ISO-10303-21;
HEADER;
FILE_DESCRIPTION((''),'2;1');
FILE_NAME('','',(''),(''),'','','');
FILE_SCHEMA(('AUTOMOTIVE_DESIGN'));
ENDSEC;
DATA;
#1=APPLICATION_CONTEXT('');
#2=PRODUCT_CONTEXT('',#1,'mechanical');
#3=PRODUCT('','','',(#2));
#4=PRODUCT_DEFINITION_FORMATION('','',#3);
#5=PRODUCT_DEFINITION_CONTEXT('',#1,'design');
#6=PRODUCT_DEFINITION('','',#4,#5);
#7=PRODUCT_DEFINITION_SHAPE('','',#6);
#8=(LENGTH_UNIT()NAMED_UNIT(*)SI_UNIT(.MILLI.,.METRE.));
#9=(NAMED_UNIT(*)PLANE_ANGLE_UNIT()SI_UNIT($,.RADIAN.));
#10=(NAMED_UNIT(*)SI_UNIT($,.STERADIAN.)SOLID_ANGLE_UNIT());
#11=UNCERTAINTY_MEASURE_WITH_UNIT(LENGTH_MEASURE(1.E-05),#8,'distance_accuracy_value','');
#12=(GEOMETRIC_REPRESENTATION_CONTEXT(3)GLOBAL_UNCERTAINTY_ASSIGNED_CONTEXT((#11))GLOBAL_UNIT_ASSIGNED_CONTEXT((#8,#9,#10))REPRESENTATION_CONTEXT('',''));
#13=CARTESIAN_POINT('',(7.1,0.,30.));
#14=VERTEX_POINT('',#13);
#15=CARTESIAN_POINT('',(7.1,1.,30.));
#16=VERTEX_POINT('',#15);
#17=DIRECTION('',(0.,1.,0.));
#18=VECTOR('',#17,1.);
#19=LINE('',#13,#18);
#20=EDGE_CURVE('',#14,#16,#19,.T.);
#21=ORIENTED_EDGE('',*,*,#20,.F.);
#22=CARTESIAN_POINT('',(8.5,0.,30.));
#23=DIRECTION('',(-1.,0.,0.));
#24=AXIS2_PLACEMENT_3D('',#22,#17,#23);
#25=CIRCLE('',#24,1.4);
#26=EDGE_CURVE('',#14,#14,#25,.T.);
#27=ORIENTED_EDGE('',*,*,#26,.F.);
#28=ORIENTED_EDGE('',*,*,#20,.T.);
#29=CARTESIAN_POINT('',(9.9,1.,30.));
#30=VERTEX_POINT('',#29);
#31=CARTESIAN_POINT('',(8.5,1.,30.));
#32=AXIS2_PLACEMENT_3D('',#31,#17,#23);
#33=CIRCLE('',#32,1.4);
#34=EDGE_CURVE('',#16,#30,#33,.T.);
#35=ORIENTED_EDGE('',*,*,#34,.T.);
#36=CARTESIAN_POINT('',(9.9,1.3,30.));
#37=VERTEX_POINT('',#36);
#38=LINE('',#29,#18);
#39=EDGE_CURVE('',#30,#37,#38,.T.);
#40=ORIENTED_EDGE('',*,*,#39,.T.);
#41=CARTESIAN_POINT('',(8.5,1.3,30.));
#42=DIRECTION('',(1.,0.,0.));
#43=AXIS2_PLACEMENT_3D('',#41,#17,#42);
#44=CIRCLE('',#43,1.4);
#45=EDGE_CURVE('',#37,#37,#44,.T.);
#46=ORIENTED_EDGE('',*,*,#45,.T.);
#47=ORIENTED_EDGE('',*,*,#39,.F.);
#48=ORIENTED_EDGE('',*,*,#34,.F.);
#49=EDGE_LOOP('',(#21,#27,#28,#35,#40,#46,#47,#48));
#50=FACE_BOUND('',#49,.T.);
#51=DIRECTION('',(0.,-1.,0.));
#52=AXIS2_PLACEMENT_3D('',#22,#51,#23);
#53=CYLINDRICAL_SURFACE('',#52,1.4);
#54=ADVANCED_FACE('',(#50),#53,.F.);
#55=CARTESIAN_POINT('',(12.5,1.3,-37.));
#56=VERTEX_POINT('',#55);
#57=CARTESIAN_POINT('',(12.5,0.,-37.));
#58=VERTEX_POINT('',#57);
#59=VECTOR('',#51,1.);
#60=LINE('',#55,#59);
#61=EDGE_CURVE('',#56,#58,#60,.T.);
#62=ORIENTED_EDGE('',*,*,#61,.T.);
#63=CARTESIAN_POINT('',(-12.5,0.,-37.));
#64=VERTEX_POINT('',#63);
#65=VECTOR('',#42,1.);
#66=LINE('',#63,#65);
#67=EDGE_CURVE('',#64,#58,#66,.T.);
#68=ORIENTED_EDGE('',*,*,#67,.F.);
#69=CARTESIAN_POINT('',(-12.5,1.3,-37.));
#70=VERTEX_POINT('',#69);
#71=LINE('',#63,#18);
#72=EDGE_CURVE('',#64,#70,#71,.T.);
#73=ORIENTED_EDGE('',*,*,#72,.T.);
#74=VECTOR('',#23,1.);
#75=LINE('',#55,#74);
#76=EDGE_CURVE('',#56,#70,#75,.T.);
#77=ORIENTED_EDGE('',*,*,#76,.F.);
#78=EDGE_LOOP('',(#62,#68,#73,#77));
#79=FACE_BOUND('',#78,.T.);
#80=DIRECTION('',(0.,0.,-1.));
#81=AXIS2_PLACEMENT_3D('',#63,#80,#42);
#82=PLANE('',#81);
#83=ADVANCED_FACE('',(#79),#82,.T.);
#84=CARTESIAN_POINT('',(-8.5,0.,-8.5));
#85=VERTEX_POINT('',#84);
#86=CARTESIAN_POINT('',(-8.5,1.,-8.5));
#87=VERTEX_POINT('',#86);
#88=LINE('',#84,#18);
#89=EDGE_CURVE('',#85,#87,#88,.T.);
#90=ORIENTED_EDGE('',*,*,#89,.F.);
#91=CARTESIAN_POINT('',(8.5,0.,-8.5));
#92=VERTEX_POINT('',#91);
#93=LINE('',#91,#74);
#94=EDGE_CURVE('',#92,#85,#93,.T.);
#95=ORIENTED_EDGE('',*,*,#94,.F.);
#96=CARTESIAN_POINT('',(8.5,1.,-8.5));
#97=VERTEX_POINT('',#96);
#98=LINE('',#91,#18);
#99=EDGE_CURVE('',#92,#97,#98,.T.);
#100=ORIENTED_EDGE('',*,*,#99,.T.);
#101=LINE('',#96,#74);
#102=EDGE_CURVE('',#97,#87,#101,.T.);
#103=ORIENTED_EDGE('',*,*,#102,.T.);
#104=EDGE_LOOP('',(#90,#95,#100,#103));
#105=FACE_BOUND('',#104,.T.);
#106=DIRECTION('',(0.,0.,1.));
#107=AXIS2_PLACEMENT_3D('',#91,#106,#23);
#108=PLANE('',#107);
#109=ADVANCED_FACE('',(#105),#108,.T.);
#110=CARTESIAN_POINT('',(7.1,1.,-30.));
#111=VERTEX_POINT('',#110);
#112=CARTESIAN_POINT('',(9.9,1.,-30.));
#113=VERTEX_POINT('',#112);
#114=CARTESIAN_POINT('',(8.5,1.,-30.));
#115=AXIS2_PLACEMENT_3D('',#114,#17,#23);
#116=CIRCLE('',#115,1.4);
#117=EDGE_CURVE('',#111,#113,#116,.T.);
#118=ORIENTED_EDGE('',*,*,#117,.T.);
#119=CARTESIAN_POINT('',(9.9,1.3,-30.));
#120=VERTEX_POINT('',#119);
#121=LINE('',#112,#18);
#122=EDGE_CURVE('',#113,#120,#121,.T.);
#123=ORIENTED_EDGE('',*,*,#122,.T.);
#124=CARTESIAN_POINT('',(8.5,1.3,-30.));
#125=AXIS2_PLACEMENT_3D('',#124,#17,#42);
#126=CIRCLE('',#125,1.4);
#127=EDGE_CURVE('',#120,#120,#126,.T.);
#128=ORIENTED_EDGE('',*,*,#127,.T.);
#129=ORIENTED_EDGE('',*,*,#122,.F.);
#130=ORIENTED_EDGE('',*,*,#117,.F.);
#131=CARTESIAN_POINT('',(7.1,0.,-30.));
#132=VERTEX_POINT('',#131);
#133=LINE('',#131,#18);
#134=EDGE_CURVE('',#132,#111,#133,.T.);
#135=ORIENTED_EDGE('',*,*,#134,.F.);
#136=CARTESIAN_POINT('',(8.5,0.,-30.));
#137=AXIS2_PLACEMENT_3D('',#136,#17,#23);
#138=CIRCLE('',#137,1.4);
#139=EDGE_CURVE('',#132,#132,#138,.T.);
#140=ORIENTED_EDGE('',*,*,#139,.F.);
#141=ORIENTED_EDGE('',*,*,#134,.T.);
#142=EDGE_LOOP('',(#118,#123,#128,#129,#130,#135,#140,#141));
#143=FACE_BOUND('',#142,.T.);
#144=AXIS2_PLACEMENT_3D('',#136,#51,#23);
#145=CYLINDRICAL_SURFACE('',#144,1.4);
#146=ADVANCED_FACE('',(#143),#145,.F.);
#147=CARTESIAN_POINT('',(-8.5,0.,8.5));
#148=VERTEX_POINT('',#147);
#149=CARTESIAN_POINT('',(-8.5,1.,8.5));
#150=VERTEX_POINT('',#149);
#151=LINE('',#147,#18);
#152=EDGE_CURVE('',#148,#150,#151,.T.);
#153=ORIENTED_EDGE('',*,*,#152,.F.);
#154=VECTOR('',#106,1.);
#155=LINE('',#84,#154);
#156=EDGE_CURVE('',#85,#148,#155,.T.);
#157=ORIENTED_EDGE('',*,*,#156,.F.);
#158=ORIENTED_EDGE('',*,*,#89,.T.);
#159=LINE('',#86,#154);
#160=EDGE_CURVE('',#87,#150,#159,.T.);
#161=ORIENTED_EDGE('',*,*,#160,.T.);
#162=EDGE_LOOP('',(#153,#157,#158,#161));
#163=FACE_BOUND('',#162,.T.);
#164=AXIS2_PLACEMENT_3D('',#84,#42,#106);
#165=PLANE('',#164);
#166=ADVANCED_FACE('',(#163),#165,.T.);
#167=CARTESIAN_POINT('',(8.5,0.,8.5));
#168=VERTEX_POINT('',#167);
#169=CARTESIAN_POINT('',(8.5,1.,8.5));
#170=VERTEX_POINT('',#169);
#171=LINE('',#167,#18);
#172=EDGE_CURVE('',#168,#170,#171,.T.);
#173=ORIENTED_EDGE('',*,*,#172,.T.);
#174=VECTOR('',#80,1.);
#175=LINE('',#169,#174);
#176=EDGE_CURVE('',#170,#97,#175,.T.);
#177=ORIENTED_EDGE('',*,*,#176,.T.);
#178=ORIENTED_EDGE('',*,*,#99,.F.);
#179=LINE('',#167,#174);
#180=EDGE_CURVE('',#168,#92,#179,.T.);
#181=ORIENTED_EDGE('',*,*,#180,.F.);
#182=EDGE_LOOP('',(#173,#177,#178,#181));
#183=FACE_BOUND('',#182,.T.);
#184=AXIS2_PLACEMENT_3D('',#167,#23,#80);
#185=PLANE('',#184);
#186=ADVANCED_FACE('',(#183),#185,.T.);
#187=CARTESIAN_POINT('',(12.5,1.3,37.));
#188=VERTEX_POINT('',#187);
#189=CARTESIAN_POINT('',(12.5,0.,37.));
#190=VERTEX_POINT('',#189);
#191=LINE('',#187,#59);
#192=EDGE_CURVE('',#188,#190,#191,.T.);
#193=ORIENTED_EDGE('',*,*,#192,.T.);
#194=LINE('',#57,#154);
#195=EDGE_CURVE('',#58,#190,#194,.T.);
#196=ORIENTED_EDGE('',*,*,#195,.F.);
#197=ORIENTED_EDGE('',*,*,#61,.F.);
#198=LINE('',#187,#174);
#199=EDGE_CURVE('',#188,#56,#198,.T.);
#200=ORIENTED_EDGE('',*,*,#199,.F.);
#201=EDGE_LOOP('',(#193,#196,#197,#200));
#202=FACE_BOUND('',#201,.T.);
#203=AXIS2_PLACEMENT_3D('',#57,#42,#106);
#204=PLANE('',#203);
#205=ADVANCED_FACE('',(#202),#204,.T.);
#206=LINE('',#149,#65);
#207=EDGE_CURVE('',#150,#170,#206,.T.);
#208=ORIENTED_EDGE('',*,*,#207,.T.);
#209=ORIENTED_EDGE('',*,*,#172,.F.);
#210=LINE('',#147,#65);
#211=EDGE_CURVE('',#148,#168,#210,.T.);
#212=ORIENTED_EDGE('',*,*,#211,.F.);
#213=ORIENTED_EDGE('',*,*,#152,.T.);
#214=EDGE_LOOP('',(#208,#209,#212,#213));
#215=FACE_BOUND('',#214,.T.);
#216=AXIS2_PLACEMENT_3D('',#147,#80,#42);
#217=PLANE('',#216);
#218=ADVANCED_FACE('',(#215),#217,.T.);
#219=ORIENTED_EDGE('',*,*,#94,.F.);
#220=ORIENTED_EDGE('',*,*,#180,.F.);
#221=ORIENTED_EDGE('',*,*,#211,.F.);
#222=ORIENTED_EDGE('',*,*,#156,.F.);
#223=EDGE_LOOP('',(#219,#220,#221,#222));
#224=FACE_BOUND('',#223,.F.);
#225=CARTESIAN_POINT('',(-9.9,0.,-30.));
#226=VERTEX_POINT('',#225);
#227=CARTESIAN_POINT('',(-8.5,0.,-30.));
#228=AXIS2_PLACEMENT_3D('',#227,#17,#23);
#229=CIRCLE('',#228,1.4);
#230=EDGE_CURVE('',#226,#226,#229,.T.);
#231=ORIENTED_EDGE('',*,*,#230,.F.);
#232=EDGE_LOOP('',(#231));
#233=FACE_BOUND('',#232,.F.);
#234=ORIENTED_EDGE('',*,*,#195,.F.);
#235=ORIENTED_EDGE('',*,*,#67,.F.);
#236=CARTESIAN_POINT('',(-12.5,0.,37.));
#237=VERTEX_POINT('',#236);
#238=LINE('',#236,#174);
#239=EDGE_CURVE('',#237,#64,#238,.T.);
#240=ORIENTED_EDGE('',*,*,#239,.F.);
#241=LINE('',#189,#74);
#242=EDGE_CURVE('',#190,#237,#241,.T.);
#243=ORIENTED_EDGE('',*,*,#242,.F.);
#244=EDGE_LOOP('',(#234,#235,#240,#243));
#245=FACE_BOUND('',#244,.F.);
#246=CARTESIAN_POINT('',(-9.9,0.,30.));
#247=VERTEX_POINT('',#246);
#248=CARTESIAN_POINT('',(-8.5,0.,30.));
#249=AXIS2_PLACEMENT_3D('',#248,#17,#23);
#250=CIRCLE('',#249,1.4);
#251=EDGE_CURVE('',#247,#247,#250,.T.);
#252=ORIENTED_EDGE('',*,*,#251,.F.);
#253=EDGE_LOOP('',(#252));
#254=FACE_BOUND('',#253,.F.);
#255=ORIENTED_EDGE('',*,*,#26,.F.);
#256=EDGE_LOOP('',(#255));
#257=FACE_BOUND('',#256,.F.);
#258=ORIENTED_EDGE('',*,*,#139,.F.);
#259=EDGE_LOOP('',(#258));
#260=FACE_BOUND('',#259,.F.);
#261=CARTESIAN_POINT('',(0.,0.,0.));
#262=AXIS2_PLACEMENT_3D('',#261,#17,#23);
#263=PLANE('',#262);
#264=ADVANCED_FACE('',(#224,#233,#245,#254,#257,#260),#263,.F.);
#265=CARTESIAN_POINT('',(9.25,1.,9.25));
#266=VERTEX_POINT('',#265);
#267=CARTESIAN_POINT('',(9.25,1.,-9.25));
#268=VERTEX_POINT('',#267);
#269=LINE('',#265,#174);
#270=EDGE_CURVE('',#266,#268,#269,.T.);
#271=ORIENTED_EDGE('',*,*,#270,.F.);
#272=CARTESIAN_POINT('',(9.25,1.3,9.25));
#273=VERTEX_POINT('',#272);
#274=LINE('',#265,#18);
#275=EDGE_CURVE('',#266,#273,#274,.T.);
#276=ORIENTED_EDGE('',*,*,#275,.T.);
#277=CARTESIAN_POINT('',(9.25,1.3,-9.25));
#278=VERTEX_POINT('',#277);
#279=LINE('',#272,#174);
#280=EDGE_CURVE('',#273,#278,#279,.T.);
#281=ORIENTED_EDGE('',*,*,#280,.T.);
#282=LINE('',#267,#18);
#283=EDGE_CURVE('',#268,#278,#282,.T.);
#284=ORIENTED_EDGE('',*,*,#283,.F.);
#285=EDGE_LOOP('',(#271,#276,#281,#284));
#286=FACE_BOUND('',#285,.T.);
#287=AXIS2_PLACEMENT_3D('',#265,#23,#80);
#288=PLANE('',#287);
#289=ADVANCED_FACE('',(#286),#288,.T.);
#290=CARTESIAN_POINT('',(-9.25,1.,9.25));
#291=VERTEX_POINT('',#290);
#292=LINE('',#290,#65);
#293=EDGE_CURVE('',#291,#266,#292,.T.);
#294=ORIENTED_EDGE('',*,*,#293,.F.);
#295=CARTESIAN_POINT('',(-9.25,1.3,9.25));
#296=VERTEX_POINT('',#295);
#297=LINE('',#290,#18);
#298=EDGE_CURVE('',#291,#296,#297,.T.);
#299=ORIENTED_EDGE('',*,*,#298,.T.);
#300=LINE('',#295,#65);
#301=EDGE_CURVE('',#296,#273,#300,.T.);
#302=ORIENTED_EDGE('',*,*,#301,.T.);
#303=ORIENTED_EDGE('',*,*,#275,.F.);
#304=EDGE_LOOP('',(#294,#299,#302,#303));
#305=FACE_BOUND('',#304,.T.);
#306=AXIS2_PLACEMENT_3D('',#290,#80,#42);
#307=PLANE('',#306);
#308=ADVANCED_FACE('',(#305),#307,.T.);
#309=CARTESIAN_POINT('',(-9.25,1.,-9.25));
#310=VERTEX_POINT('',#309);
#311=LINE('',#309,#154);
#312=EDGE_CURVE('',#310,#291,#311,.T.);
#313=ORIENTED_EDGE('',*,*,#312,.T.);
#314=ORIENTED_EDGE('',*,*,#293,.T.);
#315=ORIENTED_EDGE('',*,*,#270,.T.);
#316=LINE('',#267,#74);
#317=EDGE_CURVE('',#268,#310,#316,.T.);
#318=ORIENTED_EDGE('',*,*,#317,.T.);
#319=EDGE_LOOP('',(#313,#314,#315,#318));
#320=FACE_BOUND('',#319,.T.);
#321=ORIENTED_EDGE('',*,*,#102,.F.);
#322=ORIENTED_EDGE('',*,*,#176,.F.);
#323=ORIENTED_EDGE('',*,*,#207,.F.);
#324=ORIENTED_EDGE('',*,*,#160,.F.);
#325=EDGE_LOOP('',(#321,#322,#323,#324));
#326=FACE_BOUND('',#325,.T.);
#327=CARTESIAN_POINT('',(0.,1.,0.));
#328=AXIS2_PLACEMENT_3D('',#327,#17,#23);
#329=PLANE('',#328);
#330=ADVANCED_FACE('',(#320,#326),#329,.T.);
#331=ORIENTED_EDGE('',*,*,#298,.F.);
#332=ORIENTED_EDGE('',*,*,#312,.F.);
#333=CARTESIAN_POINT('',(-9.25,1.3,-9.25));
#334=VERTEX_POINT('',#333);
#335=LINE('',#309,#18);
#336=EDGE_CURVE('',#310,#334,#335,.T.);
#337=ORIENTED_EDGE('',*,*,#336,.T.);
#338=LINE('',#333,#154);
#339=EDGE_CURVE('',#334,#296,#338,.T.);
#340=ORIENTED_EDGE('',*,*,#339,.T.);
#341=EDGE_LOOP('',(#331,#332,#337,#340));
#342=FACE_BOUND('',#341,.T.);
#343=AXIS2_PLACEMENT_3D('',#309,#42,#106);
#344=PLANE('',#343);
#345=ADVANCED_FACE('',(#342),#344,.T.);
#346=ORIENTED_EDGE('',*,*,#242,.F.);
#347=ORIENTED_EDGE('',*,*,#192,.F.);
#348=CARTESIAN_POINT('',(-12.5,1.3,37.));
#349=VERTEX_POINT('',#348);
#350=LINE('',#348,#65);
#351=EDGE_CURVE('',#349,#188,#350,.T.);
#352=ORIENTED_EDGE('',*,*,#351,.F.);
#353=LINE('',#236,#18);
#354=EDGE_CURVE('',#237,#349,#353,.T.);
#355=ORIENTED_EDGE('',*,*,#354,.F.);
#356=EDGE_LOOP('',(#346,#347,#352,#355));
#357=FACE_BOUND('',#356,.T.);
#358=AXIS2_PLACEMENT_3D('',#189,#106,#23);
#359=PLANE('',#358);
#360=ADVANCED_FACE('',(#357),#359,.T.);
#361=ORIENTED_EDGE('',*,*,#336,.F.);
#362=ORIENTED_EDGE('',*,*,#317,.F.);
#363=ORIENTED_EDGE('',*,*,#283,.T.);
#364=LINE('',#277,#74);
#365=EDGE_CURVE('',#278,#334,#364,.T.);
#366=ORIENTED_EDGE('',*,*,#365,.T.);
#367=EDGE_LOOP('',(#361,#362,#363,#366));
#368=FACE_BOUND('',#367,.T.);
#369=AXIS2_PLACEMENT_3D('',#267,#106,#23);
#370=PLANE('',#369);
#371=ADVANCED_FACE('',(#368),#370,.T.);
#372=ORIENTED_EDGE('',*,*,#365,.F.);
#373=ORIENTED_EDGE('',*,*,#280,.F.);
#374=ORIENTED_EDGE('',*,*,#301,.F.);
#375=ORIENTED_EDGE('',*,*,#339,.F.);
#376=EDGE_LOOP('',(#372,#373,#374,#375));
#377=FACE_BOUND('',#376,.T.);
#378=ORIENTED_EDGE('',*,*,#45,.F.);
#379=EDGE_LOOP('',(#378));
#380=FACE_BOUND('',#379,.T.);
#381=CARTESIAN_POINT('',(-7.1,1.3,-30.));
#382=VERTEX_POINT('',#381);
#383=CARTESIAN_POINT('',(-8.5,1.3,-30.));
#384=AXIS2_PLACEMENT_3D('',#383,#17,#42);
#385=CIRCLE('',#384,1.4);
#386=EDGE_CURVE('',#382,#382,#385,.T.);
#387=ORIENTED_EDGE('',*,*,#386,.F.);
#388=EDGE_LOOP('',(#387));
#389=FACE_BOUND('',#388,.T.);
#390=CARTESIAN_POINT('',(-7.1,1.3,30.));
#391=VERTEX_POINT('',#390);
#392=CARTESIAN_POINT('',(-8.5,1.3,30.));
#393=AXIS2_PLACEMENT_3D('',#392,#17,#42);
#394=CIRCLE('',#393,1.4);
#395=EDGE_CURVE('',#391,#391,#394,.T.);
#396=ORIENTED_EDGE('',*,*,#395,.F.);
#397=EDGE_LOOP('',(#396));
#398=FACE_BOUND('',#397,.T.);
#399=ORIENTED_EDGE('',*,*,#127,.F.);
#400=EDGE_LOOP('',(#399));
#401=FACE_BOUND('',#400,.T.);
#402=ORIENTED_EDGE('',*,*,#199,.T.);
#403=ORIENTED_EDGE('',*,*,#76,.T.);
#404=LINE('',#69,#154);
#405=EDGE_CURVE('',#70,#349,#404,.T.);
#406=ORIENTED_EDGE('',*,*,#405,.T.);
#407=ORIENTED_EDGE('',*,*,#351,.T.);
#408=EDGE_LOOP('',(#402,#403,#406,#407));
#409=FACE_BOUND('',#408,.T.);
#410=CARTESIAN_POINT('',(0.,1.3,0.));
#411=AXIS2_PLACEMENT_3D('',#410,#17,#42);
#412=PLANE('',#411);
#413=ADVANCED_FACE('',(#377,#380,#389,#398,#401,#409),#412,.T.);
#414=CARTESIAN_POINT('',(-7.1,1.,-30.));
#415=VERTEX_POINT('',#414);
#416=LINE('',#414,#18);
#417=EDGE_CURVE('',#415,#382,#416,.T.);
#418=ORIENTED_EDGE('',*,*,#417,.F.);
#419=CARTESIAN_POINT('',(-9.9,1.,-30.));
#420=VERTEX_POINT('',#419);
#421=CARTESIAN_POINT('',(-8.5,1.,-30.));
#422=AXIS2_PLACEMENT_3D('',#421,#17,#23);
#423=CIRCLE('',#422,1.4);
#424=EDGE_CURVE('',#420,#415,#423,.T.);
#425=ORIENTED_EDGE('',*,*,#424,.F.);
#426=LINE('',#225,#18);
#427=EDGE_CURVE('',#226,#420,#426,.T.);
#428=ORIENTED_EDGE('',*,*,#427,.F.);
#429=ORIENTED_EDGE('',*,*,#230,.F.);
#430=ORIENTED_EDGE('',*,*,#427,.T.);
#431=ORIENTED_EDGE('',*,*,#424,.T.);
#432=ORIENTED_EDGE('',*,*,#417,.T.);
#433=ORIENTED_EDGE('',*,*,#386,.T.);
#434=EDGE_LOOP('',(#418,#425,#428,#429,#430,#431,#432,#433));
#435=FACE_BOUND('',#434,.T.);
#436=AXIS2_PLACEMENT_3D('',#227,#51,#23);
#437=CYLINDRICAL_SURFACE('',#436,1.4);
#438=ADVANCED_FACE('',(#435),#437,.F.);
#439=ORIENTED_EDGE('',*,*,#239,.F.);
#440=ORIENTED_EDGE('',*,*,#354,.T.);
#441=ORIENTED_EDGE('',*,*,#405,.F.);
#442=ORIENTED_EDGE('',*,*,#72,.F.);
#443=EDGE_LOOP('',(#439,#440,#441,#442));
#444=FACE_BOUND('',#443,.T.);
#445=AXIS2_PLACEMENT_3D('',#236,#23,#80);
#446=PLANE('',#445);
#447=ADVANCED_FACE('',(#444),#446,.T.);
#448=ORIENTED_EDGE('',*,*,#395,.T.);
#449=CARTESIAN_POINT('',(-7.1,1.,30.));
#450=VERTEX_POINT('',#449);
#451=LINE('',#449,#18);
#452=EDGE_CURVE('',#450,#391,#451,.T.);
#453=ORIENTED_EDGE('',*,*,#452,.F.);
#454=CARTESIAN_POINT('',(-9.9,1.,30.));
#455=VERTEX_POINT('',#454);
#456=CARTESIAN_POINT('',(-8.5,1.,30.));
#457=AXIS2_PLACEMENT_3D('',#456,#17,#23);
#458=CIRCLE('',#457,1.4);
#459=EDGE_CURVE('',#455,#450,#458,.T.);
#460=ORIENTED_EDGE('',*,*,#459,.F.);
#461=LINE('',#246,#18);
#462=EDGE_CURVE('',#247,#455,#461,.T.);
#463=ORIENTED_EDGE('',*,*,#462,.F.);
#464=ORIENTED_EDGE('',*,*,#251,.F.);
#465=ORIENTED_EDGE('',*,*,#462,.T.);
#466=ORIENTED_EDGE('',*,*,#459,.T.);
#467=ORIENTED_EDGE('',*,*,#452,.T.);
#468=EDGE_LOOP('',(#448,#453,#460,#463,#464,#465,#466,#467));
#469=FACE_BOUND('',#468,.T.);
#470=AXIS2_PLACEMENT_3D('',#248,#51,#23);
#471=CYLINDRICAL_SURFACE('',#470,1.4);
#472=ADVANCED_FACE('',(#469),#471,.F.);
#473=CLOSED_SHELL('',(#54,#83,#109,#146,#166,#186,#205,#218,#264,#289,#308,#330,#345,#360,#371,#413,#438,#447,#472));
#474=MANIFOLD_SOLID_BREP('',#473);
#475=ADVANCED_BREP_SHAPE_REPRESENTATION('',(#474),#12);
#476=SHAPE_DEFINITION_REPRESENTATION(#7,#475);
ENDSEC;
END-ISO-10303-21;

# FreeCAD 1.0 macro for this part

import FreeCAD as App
import Part
import Sketcher
Q = App.Units.Quantity


def add_polygon(sketch, points):
    """Adds a closed chain of lines whose ends are joined by coincident constraints."""
    first, n = sketch.GeometryCount, len(points)
    for a, b in zip(points, points[1:] + points[:1]):
        sketch.addGeometry(Part.LineSegment(App.Vector(*a, 0), App.Vector(*b, 0)), False)
    for i in range(n):
        sketch.addConstraint(Sketcher.Constraint("Coincident", first + i, 2, first + (i + 1) % n, 1))

doc = App.newDocument("Part")
body = doc.addObject("PartDesign::Body", "Body")

sketch1 = body.newObject("Sketcher::SketchObject", "Sketch")
sketch1.AttachmentSupport = (doc.getObject("XZ_Plane"), [""])
sketch1.MapMode = "FlatFace"
add_polygon(sketch1, [(12.5, -37), (-12.5, -37), (-12.5, 37), (12.5, 37)])
sketch1.addGeometry(Part.Circle(App.Vector(8.5, -30, 0), App.Vector(0, 0, 1), 1.4), False)
sketch1.addGeometry(Part.Circle(App.Vector(-8.5, -30, 0), App.Vector(0, 0, 1), 1.4), False)
sketch1.addGeometry(Part.Circle(App.Vector(8.5, 30, 0), App.Vector(0, 0, 1), 1.4), False)
add_polygon(sketch1, [(8.5, 8.5), (-8.5, 8.5), (-8.5, -8.5), (8.5, -8.5)])
sketch1.addGeometry(Part.Circle(App.Vector(-8.5, 30, 0), App.Vector(0, 0, 1), 1.4), False)
sketch1.addConstraint([
    Sketcher.Constraint("Horizontal", 0),
    Sketcher.Constraint("Vertical", 1),
    Sketcher.Constraint("Horizontal", 2),
    Sketcher.Constraint("Vertical", 3),
    Sketcher.Constraint("Horizontal", 7),
    Sketcher.Constraint("Vertical", 8),
    Sketcher.Constraint("Horizontal", 9),
    Sketcher.Constraint("Vertical", 10),
    Sketcher.Constraint("Equal", 4, 5),
    Sketcher.Constraint("Equal", 5, 6),
    Sketcher.Constraint("Equal", 6, 11),
    Sketcher.Constraint("Symmetric", 5, 3, 6, 3, -1, 1),
    Sketcher.Constraint("Symmetric", 4, 3, 11, 3, -1, 1),
    Sketcher.Constraint("Symmetric", 0, 2, 2, 2, -1, 1),
    Sketcher.Constraint("Symmetric", 7, 2, 9, 2, -1, 1),
    Sketcher.Constraint("Symmetric", 4, 3, 5, 3, -2),
    Sketcher.Constraint("Vertical", 11, 3, 7, 2),
    Sketcher.Constraint("Equal", 9, 8),
    Sketcher.Constraint("Diameter", 4, Q("2.8 mm")),
    Sketcher.Constraint("DistanceX", 0, 2, 0, 1, Q("25 mm")),
    Sketcher.Constraint("DistanceX", 7, 2, 7, 1, Q("17 mm")),
    Sketcher.Constraint("DistanceY", 1, 1, 1, 2, Q("74 mm")),
    Sketcher.Constraint("DistanceY", 4, 3, 6, 3, Q("60 mm")),
])
pad1 = body.newObject("PartDesign::Pad", "Pad")
pad1.Profile = sketch1
pad1.Length = 1
pad1.Reversed = True

sketch2 = body.newObject("Sketcher::SketchObject", "Sketch001")
sketch2.AttachmentSupport = (doc.getObject("XZ_Plane"), [""])
sketch2.MapMode = "FlatFace"
sketch2.AttachmentOffset = App.Placement(App.Vector(0, 0, -1), App.Rotation())
add_polygon(sketch2, [(-12.5, -37), (-12.5, 37), (12.5, 37), (12.5, -37)])
sketch2.addGeometry(Part.Circle(App.Vector(-8.5, 30, 0), App.Vector(0, 0, 1), 1.4), False)
sketch2.addGeometry(Part.Circle(App.Vector(8.5, 30, 0), App.Vector(0, 0, 1), 1.4), False)
sketch2.addGeometry(Part.Circle(App.Vector(-8.5, -30, 0), App.Vector(0, 0, 1), 1.4), False)
add_polygon(sketch2, [(9.2, 9.2), (-9.2, 9.2), (-9.2, -9.2), (9.2, -9.2)])
sketch2.addGeometry(Part.Circle(App.Vector(8.5, -30, 0), App.Vector(0, 0, 1), 1.4), False)
sketch2.addConstraint([
    Sketcher.Constraint("Vertical", 0),
    Sketcher.Constraint("Horizontal", 1),
    Sketcher.Constraint("Vertical", 2),
    Sketcher.Constraint("Horizontal", 3),
    Sketcher.Constraint("Horizontal", 7),
    Sketcher.Constraint("Vertical", 8),
    Sketcher.Constraint("Horizontal", 9),
    Sketcher.Constraint("Vertical", 10),
    Sketcher.Constraint("Equal", 4, 5),
    Sketcher.Constraint("Equal", 5, 6),
    Sketcher.Constraint("Equal", 6, 11),
    Sketcher.Constraint("Symmetric", 5, 3, 6, 3, -1, 1),
    Sketcher.Constraint("Symmetric", 4, 3, 11, 3, -1, 1),
    Sketcher.Constraint("Symmetric", 0, 2, 2, 2, -1, 1),
    Sketcher.Constraint("Symmetric", 7, 2, 9, 2, -1, 1),
    Sketcher.Constraint("Symmetric", 4, 3, 5, 3, -2),
    Sketcher.Constraint("Equal", 9, 8),
    Sketcher.Constraint("DistanceX", 7, 2, 7, 1, Q("18.5 mm")),
    Sketcher.Constraint("Diameter", 4, Q("2.8 mm")),
    Sketcher.Constraint("DistanceX", 1, 1, 1, 2, Q("25 mm")),
    Sketcher.Constraint("DistanceY", 0, 1, 0, 2, Q("74 mm")),
    Sketcher.Constraint("DistanceY", -1, 1, 4, 3, Q("30 mm")),
    Sketcher.Constraint("DistanceX", 4, 3, 5, 3, Q("17 mm")),
])
pad2 = body.newObject("PartDesign::Pad", "Pad001")
pad2.Profile = sketch2
pad2.Length = 0.3
pad2.Reversed = True

doc.recompute()
